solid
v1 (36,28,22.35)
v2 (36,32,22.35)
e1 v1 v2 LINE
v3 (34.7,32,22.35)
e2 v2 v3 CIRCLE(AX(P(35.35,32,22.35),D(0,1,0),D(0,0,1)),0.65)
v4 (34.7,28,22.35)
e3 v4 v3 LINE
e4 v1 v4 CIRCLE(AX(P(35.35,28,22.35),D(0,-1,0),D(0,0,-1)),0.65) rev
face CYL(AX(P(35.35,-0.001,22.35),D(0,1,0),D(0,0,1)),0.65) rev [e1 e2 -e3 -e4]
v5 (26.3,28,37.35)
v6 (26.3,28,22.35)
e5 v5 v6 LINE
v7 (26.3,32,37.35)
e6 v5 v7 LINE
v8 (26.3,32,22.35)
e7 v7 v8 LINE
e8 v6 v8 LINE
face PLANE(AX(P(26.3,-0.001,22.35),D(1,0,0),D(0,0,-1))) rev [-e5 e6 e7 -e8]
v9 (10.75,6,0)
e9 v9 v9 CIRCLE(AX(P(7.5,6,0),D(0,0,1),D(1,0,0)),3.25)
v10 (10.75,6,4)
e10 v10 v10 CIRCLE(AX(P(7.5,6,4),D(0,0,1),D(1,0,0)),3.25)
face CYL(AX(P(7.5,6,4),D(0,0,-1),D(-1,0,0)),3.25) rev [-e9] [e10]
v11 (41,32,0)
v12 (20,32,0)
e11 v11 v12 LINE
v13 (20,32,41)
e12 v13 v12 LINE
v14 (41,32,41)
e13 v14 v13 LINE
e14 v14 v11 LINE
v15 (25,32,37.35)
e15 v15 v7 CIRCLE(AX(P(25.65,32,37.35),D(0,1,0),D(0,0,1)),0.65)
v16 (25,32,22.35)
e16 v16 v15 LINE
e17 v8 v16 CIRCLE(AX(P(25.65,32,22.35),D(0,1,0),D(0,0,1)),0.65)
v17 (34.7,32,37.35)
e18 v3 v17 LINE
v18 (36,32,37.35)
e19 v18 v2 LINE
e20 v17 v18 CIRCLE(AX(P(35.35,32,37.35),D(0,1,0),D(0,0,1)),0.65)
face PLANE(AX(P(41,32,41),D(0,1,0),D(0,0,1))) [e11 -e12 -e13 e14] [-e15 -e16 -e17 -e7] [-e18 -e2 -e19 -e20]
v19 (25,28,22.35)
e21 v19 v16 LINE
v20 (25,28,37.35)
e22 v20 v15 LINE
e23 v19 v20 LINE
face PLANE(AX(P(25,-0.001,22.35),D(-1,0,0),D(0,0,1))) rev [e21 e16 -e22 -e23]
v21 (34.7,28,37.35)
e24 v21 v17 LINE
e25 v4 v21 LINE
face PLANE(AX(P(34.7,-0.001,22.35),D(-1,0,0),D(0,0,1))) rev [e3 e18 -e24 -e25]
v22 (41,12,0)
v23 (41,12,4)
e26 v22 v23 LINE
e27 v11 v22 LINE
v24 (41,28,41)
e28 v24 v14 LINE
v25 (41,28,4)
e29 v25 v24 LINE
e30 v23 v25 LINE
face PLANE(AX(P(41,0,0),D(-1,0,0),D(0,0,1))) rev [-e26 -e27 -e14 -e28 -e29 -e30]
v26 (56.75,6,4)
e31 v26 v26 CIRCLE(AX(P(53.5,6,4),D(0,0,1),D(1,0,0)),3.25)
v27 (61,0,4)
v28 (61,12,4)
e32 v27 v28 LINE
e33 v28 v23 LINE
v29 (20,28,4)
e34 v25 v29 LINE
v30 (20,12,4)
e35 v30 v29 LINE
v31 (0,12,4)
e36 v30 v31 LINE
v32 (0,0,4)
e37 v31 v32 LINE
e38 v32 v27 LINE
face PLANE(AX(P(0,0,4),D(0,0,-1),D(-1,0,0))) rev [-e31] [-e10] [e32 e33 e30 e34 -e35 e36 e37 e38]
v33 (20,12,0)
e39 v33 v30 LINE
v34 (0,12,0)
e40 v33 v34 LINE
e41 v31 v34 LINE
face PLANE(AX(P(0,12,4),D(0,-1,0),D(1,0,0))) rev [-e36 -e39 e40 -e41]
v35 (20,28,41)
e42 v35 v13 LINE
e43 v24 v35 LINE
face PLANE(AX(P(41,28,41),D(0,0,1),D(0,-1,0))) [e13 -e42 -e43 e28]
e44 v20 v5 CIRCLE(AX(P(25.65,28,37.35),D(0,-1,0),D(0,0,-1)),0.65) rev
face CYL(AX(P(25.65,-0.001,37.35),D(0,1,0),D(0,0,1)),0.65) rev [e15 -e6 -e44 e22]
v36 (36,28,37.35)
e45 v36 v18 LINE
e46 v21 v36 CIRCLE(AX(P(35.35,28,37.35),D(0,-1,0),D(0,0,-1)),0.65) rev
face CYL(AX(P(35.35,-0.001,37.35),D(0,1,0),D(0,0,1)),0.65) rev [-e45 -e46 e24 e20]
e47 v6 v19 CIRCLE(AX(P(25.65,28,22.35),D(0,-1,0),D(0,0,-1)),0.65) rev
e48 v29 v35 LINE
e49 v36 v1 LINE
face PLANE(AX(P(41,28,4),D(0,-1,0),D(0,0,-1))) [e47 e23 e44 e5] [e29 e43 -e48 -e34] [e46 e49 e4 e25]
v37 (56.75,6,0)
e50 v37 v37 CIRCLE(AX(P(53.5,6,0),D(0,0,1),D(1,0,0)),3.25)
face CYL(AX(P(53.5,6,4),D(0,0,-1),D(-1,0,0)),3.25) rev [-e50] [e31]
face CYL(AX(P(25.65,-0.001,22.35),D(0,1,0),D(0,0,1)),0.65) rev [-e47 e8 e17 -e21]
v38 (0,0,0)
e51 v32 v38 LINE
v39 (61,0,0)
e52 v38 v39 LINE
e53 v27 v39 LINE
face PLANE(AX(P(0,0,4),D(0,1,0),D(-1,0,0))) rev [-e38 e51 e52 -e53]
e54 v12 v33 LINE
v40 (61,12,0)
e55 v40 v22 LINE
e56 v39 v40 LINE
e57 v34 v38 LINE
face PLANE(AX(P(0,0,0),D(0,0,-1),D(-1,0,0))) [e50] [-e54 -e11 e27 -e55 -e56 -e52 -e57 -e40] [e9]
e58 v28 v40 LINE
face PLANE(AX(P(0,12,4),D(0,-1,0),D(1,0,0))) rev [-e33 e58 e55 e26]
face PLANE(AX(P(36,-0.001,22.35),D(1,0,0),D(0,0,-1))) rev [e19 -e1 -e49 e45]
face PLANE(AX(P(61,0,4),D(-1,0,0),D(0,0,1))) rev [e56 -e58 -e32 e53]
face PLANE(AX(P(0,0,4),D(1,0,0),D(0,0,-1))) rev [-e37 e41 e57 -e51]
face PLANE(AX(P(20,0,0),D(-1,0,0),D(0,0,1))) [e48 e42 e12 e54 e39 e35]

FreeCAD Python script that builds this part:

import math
import FreeCAD as App
import Part
import Sketcher

V = App.Vector
Q = App.Units.Quantity

doc = App.newDocument("Part")
body = doc.addObject("PartDesign::Body", "Body")

# Sketch on XY plane
sketch1 = body.newObject("Sketcher::SketchObject", "Sketch")
sketch1.AttachmentSupport = (doc.getObject("XY_Plane"), [""])
sketch1.MapMode = "FlatFace"
sketch1.addGeometry([
    Part.LineSegment(V(0, 12, 0), V(0, 0, 0)),  # 0
    Part.LineSegment(V(0, 0, 0), V(61, 0, 0)),  # 1
    Part.LineSegment(V(61, 0, 0), V(61, 12, 0)),  # 2
    Part.LineSegment(V(61, 12, 0), V(0, 12, 0)),  # 3
    Part.Circle(V(7.5, 6, 0), V(0, 0, 1), 3.25),  # 4
    Part.Circle(V(53.5, 6, 0), V(0, 0, 1), 3.25),  # 5
], False)
sketch1.addConstraint([
    Sketcher.Constraint("Coincident", 0, 2, 1, 1),
    Sketcher.Constraint("Coincident", 1, 2, 2, 1),
    Sketcher.Constraint("Coincident", 2, 2, 3, 1),
    Sketcher.Constraint("Coincident", 3, 2, 0, 1),
    Sketcher.Constraint("Vertical", 0),
    Sketcher.Constraint("Horizontal", 1),
    Sketcher.Constraint("Vertical", 2),
    Sketcher.Constraint("Horizontal", 3),
    Sketcher.Constraint("Coincident", 0, 2, -1, 1),
    Sketcher.Constraint("Equal", 4, 5),
    Sketcher.Constraint("Horizontal", 4, 3, 5, 3),
    Sketcher.Constraint("Diameter", 4, Q("6.5 mm")),
    Sketcher.Constraint("DistanceX", 1, 1, 1, 2, Q("61 mm")),
    Sketcher.Constraint("DistanceY", 0, 2, 0, 1, Q("12 mm")),
    Sketcher.Constraint("DistanceY", -1, 1, 4, 3, Q("6 mm")),
    Sketcher.Constraint("DistanceX", 4, 3, 5, 3, Q("46 mm")),
    Sketcher.Constraint("DistanceX", -1, 1, 4, 3, Q("7.5 mm")),
])
pad1 = body.newObject("PartDesign::Pad", "Pad")
pad1.Profile = sketch1
pad1.Length = 4

# Sketch on YZ plane
sketch2 = body.newObject("Sketcher::SketchObject", "Sketch001")
sketch2.AttachmentSupport = (doc.getObject("YZ_Plane"), [""])
sketch2.MapMode = "FlatFace"
sketch2.AttachmentOffset = App.Placement(V(0, 0, 20), App.Rotation())
sketch2.addGeometry([
    Part.LineSegment(V(12, 4, 0), V(28, 4, 0)),  # 0
    Part.LineSegment(V(28, 4, 0), V(28, 41, 0)),  # 1
    Part.LineSegment(V(28, 41, 0), V(32, 41, 0)),  # 2
    Part.LineSegment(V(32, 41, 0), V(32, 0, 0)),  # 3
    Part.LineSegment(V(32, 0, 0), V(12, 0, 0)),  # 4
    Part.LineSegment(V(12, 0, 0), V(12, 4, 0)),  # 5
], False)
sketch2.addConstraint([
    Sketcher.Constraint("Coincident", 0, 2, 1, 1),
    Sketcher.Constraint("Coincident", 1, 2, 2, 1),
    Sketcher.Constraint("Coincident", 2, 2, 3, 1),
    Sketcher.Constraint("Coincident", 3, 2, 4, 1),
    Sketcher.Constraint("Coincident", 4, 2, 5, 1),
    Sketcher.Constraint("Coincident", 5, 2, 0, 1),
    Sketcher.Constraint("Horizontal", 0),
    Sketcher.Constraint("Vertical", 1),
    Sketcher.Constraint("Horizontal", 2),
    Sketcher.Constraint("Vertical", 3),
    Sketcher.Constraint("Horizontal", 4),
    Sketcher.Constraint("Vertical", 5),
    Sketcher.Constraint("PointOnObject", 3, 2, -1),
    Sketcher.Constraint("Equal", 2, 5),
    Sketcher.Constraint("DistanceX", 0, 1, 0, 2, Q("16 mm")),
    Sketcher.Constraint("DistanceX", 2, 1, 2, 2, Q("4 mm")),
    Sketcher.Constraint("DistanceY", 1, 1, 1, 2, Q("37 mm")),
    Sketcher.Constraint("DistanceX", -1, 1, 0, 2, Q("28 mm")),
])
pad2 = body.newObject("PartDesign::Pad", "Pad001")
pad2.Profile = sketch2
pad2.Length = 21

# Sketch on XZ plane
sketch3 = body.newObject("Sketcher::SketchObject", "Sketch002")
sketch3.AttachmentSupport = (doc.getObject("XZ_Plane"), [""])
sketch3.MapMode = "FlatFace"
sketch3.AttachmentOffset = App.Placement(V(0, 0, -32), App.Rotation())
sketch3.addGeometry([
    Part.LineSegment(V(36, 37.35, 0), V(36, 22.35, 0)),
    Part.ArcOfCircle(Part.Circle(V(35.35, 22.35, 0), V(0, 0, 1), 0.65), math.radians(180), math.radians(360)),
    Part.LineSegment(V(34.7, 22.35, 0), V(34.7, 37.35, 0)),
    Part.ArcOfCircle(Part.Circle(V(35.35, 37.35, 0), V(0, 0, 1), 0.65), math.radians(0), math.radians(180)),
], False)
sketch3.addConstraint([
    Sketcher.Constraint("Tangent", 0, 2, 1, 2),
    Sketcher.Constraint("Tangent", 1, 1, 2, 1),
    Sketcher.Constraint("Tangent", 2, 2, 3, 2),
    Sketcher.Constraint("Tangent", 3, 1, 0, 1),
    Sketcher.Constraint("Vertical", 0),
    Sketcher.Constraint("Vertical", 2),
    Sketcher.Constraint("DistanceY", 0, 2, 0, 1, Q("15 mm")),
    Sketcher.Constraint("Radius", 1, Q("0.65 mm")),
    Sketcher.Constraint("DistanceX", -1, 1, 0, 2, Q("36 mm")),
    Sketcher.Constraint("DistanceY", -1, 1, 1, 3, Q("22.35 mm")),
])
pocket1 = body.newObject("PartDesign::Pocket", "Pocket")
pocket1.Profile = sketch3
pocket1.Type = "UpToFirst"
pocket1.Reversed = True

# Sketch on XZ plane
sketch4 = body.newObject("Sketcher::SketchObject", "Sketch003")
sketch4.AttachmentSupport = (doc.getObject("XZ_Plane"), [""])
sketch4.MapMode = "FlatFace"
sketch4.AttachmentOffset = App.Placement(V(0, 0, -32), App.Rotation())
sketch4.addGeometry([
    Part.LineSegment(V(26.3, 37.35, 0), V(26.3, 22.35, 0)),
    Part.ArcOfCircle(Part.Circle(V(25.65, 22.35, 0), V(0, 0, 1), 0.65), math.radians(180), math.radians(360)),
    Part.LineSegment(V(25, 22.35, 0), V(25, 37.35, 0)),
    Part.ArcOfCircle(Part.Circle(V(25.65, 37.35, 0), V(0, 0, 1), 0.65), math.radians(0), math.radians(180)),
], False)
sketch4.addConstraint([
    Sketcher.Constraint("Tangent", 0, 2, 1, 2),
    Sketcher.Constraint("Tangent", 1, 1, 2, 1),
    Sketcher.Constraint("Tangent", 2, 2, 3, 2),
    Sketcher.Constraint("Tangent", 3, 1, 0, 1),
    Sketcher.Constraint("Vertical", 0),
    Sketcher.Constraint("Vertical", 2),
    Sketcher.Constraint("DistanceY", 0, 2, 0, 1, Q("15 mm")),
    Sketcher.Constraint("Radius", 1, Q("0.65 mm")),
    Sketcher.Constraint("DistanceX", -1, 1, 1, 1, Q("25 mm")),
    Sketcher.Constraint("DistanceY", -1, 1, 1, 3, Q("22.35 mm")),
])
pocket2 = body.newObject("PartDesign::Pocket", "Pocket001")
pocket2.Profile = sketch4
pocket2.Type = "UpToFirst"
pocket2.Reversed = True

doc.recompute()
